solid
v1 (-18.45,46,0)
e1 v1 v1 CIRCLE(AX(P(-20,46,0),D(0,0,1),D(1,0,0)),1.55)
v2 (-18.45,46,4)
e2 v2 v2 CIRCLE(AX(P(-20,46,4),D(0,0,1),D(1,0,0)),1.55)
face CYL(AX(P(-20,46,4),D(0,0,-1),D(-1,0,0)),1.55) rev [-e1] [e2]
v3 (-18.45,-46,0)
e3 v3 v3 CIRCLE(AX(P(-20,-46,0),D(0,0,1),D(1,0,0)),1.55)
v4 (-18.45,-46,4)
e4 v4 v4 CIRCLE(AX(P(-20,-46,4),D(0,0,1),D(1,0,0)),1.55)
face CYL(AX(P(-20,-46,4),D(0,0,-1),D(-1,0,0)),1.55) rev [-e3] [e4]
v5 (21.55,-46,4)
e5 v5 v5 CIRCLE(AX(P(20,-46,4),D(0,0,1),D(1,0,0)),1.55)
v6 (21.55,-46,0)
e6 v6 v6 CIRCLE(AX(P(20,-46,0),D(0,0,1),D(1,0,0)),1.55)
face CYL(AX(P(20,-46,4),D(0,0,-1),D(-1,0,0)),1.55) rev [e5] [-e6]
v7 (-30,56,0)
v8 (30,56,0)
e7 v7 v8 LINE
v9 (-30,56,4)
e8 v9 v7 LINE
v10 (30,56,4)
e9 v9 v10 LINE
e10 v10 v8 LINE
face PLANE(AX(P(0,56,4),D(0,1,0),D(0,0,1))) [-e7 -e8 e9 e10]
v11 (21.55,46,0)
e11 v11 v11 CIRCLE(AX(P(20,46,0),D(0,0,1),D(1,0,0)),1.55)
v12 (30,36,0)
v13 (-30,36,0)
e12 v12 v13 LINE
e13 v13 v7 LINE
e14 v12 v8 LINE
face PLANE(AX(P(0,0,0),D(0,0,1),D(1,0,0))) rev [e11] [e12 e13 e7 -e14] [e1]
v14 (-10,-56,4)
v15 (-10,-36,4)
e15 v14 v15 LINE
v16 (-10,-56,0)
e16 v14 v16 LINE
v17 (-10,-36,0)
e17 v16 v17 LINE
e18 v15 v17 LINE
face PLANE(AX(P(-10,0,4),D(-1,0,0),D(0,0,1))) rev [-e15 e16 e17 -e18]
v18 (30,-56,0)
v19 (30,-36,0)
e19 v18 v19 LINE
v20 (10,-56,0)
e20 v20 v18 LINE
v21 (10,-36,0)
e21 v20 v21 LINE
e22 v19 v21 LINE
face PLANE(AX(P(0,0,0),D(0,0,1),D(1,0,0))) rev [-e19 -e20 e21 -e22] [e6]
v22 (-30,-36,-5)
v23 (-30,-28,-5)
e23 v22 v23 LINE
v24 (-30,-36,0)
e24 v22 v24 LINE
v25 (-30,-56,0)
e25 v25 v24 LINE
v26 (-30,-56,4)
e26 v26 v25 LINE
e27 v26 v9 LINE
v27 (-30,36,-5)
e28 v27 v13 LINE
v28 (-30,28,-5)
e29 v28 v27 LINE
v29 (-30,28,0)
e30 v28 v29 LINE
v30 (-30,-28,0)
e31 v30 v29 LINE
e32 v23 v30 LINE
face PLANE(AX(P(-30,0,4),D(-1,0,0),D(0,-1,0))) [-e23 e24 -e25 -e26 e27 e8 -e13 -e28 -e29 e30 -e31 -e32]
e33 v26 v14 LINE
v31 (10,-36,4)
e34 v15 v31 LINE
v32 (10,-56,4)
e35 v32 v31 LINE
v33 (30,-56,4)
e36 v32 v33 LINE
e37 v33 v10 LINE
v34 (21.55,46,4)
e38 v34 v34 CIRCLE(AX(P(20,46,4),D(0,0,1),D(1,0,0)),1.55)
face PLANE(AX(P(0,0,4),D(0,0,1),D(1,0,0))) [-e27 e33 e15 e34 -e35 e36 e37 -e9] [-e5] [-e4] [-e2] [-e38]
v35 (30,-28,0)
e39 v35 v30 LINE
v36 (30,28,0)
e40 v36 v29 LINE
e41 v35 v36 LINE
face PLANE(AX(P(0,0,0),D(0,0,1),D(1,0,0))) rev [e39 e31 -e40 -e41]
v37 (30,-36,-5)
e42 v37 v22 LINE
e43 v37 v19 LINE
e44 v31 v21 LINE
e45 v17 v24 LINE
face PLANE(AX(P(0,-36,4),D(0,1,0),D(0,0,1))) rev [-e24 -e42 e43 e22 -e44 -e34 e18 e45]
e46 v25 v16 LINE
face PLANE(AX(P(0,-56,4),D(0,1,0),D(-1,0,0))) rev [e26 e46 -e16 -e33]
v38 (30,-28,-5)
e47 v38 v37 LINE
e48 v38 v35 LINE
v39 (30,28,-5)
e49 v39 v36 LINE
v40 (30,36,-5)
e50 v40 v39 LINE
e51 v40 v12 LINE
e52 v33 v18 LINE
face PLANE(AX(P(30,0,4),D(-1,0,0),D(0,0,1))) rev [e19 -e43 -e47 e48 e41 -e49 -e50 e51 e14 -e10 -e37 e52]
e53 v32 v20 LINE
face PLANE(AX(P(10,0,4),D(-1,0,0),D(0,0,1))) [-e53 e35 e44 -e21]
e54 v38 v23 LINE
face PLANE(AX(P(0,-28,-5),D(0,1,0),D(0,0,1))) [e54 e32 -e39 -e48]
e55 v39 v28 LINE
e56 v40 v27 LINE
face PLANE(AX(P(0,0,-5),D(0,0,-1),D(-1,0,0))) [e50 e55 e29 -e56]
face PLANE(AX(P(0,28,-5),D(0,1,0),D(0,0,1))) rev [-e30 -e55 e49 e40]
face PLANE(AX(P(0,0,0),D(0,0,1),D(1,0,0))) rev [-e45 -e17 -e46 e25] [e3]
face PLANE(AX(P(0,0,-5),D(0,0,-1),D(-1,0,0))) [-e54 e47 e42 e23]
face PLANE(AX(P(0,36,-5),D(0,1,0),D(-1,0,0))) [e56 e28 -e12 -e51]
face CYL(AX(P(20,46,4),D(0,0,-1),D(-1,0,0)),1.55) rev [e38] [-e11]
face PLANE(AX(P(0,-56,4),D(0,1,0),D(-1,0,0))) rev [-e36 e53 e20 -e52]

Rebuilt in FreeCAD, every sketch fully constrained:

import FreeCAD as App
import Part
import Sketcher
Q = App.Units.Quantity

doc = App.newDocument("Part")
body = doc.addObject("PartDesign::Body", "Body")

# Sketch on XY plane
sketch1 = doc.addObject("Sketcher::SketchObject", "Sketch")
body.addObject(sketch1)
sketch1.AttachmentSupport = (doc.XY_Plane, [""])
sketch1.MapMode = "FlatFace"
sketch1.addGeometry(Part.LineSegment(App.Vector(-30, 56, 0), App.Vector(-30, -56, 0)), False)
sketch1.addGeometry(Part.LineSegment(App.Vector(-30, -56, 0), App.Vector(-10, -56, 0)), False)
sketch1.addGeometry(Part.LineSegment(App.Vector(-10, -56, 0), App.Vector(-10, -36, 0)), False)
sketch1.addGeometry(Part.LineSegment(App.Vector(-10, -36, 0), App.Vector(10, -36, 0)), False)
sketch1.addGeometry(Part.LineSegment(App.Vector(10, -36, 0), App.Vector(10, -56, 0)), False)
sketch1.addGeometry(Part.LineSegment(App.Vector(10, -56, 0), App.Vector(30, -56, 0)), False)
sketch1.addGeometry(Part.LineSegment(App.Vector(30, -56, 0), App.Vector(30, 56, 0)), False)
sketch1.addGeometry(Part.LineSegment(App.Vector(30, 56, 0), App.Vector(-30, 56, 0)), False)
sketch1.addGeometry(Part.Circle(App.Vector(-20, -46, 0), App.Vector(0, 0, 1), 1.6), False)
sketch1.addGeometry(Part.Circle(App.Vector(20, -46, 0), App.Vector(0, 0, 1), 1.6), False)
sketch1.addGeometry(Part.Circle(App.Vector(-20, 46, 0), App.Vector(0, 0, 1), 1.6), False)
sketch1.addGeometry(Part.Circle(App.Vector(20, 46, 0), App.Vector(0, 0, 1), 1.6), False)
sketch1.addConstraint(Sketcher.Constraint("Coincident", 0, 2, 1, 1))
sketch1.addConstraint(Sketcher.Constraint("Coincident", 1, 2, 2, 1))
sketch1.addConstraint(Sketcher.Constraint("Coincident", 2, 2, 3, 1))
sketch1.addConstraint(Sketcher.Constraint("Coincident", 3, 2, 4, 1))
sketch1.addConstraint(Sketcher.Constraint("Coincident", 4, 2, 5, 1))
sketch1.addConstraint(Sketcher.Constraint("Coincident", 5, 2, 6, 1))
sketch1.addConstraint(Sketcher.Constraint("Coincident", 6, 2, 7, 1))
sketch1.addConstraint(Sketcher.Constraint("Coincident", 7, 2, 0, 1))
sketch1.addConstraint(Sketcher.Constraint("Vertical", 0))
sketch1.addConstraint(Sketcher.Constraint("Horizontal", 1))
sketch1.addConstraint(Sketcher.Constraint("Vertical", 2))
sketch1.addConstraint(Sketcher.Constraint("Horizontal", 3))
sketch1.addConstraint(Sketcher.Constraint("Vertical", 4))
sketch1.addConstraint(Sketcher.Constraint("Horizontal", 5))
sketch1.addConstraint(Sketcher.Constraint("Vertical", 6))
sketch1.addConstraint(Sketcher.Constraint("Horizontal", 7))
sketch1.addConstraint(Sketcher.Constraint("Equal", 8, 9))
sketch1.addConstraint(Sketcher.Constraint("Equal", 9, 10))
sketch1.addConstraint(Sketcher.Constraint("Equal", 10, 11))
sketch1.addConstraint(Sketcher.Constraint("Symmetric", 9, 3, 10, 3, -1, 1))
sketch1.addConstraint(Sketcher.Constraint("Symmetric", 8, 3, 11, 3, -1, 1))
sketch1.addConstraint(Sketcher.Constraint("Symmetric", 0, 2, 6, 2, -1, 1))
sketch1.addConstraint(Sketcher.Constraint("Symmetric", 8, 3, 9, 3, -2))
sketch1.addConstraint(Sketcher.Constraint("Symmetric", 1, 2, 4, 2, -2))
sketch1.addConstraint(Sketcher.Constraint("Equal", 1, 3))
sketch1.addConstraint(Sketcher.Constraint("Equal", 5, 2))
sketch1.addConstraint(Sketcher.Constraint("Diameter", 8, Q("3.1 mm")))
sketch1.addConstraint(Sketcher.Constraint("DistanceX", 1, 1, 1, 2, Q("20 mm")))
sketch1.addConstraint(Sketcher.Constraint("DistanceY", 0, 2, 0, 1, Q("112 mm")))
sketch1.addConstraint(Sketcher.Constraint("DistanceX", 8, 3, -1, 1, Q("20 mm")))
sketch1.addConstraint(Sketcher.Constraint("DistanceY", 8, 3, -1, 1, Q("46 mm")))
pad1 = doc.addObject("PartDesign::Pad", "Pad")
body.addObject(pad1)
pad1.Profile = sketch1
pad1.Length = 4

# Sketch on XY plane
sketch2 = doc.addObject("Sketcher::SketchObject", "Sketch001")
body.addObject(sketch2)
sketch2.AttachmentSupport = (doc.XY_Plane, [""])
sketch2.MapMode = "FlatFace"
sketch2.addGeometry(Part.LineSegment(App.Vector(30, 36, 0), App.Vector(30, 28, 0)), False)
sketch2.addGeometry(Part.LineSegment(App.Vector(30, 28, 0), App.Vector(-30, 28, 0)), False)
sketch2.addGeometry(Part.LineSegment(App.Vector(-30, 28, 0), App.Vector(-30, 36, 0)), False)
sketch2.addGeometry(Part.LineSegment(App.Vector(-30, 36, 0), App.Vector(30, 36, 0)), False)
sketch2.addGeometry(Part.LineSegment(App.Vector(-30, -28, 0), App.Vector(30, -28, 0)), False)
sketch2.addGeometry(Part.LineSegment(App.Vector(30, -28, 0), App.Vector(30, -36, 0)), False)
sketch2.addGeometry(Part.LineSegment(App.Vector(30, -36, 0), App.Vector(-30, -36, 0)), False)
sketch2.addGeometry(Part.LineSegment(App.Vector(-30, -36, 0), App.Vector(-30, -28, 0)), False)
sketch2.addConstraint(Sketcher.Constraint("Coincident", 0, 2, 1, 1))
sketch2.addConstraint(Sketcher.Constraint("Coincident", 1, 2, 2, 1))
sketch2.addConstraint(Sketcher.Constraint("Coincident", 2, 2, 3, 1))
sketch2.addConstraint(Sketcher.Constraint("Coincident", 3, 2, 0, 1))
sketch2.addConstraint(Sketcher.Constraint("Coincident", 4, 2, 5, 1))
sketch2.addConstraint(Sketcher.Constraint("Coincident", 5, 2, 6, 1))
sketch2.addConstraint(Sketcher.Constraint("Coincident", 6, 2, 7, 1))
sketch2.addConstraint(Sketcher.Constraint("Coincident", 7, 2, 4, 1))
sketch2.addConstraint(Sketcher.Constraint("Vertical", 0))
sketch2.addConstraint(Sketcher.Constraint("Horizontal", 1))
sketch2.addConstraint(Sketcher.Constraint("Vertical", 2))
sketch2.addConstraint(Sketcher.Constraint("Horizontal", 3))
sketch2.addConstraint(Sketcher.Constraint("Horizontal", 4))
sketch2.addConstraint(Sketcher.Constraint("Vertical", 5))
sketch2.addConstraint(Sketcher.Constraint("Horizontal", 6))
sketch2.addConstraint(Sketcher.Constraint("Vertical", 7))
sketch2.addConstraint(Sketcher.Constraint("Symmetric", 1, 2, 4, 2, -1, 1))
sketch2.addConstraint(Sketcher.Constraint("Symmetric", 3, 2, 6, 2, -1, 1))
sketch2.addConstraint(Sketcher.Constraint("Vertical", 3, 2, 4, 2))
sketch2.addConstraint(Sketcher.Constraint("DistanceX", 1, 2, 1, 1, Q("60 mm")))
sketch2.addConstraint(Sketcher.Constraint("DistanceY", 0, 2, 0, 1, Q("8 mm")))
sketch2.addConstraint(Sketcher.Constraint("DistanceY", -1, 1, 0, 2, Q("28 mm")))
pad2 = doc.addObject("PartDesign::Pad", "Pad001")
body.addObject(pad2)
pad2.Profile = sketch2
pad2.Length = 5
pad2.Reversed = True

doc.recompute()
